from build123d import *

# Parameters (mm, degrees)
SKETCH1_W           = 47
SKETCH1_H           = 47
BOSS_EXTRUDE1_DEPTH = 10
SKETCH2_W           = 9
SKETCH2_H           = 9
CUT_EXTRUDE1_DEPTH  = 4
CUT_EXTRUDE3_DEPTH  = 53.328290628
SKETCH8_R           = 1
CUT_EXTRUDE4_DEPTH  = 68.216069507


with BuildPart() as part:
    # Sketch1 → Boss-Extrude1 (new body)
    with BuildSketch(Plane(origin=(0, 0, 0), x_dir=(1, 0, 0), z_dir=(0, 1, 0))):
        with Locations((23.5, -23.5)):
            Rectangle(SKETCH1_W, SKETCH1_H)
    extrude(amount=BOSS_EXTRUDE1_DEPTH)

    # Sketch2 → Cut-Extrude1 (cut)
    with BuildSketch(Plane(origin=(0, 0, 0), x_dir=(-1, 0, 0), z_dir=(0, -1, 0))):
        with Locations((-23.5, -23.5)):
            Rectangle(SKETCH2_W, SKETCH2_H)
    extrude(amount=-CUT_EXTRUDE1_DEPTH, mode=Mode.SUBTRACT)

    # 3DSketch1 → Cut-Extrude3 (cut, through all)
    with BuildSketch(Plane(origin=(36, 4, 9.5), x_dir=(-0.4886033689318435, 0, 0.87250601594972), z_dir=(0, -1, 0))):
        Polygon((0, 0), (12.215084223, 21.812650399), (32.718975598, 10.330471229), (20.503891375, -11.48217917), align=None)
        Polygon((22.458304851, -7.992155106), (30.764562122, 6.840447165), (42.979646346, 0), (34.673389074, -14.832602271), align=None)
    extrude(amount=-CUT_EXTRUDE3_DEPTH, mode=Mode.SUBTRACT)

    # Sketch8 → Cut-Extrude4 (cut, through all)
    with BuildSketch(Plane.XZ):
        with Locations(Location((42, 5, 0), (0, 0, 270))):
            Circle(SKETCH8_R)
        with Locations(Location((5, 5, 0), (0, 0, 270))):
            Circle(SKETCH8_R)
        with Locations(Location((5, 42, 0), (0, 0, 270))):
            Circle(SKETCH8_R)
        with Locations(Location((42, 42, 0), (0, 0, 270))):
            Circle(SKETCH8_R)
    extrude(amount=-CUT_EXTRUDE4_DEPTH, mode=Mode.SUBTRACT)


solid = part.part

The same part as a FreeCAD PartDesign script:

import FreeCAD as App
import Part
import Sketcher

V = App.Vector


def add_polygon(sketch, points):
    """Adds a closed chain of lines whose ends are joined by coincident constraints."""
    first, n = sketch.GeometryCount, len(points)
    for a, b in zip(points, points[1:] + points[:1]):
        sketch.addGeometry(Part.LineSegment(App.Vector(*a, 0), App.Vector(*b, 0)), False)
    for i in range(n):
        sketch.addConstraint(Sketcher.Constraint("Coincident", first + i, 2, first + (i + 1) % n, 1))

doc = App.newDocument("Part")
params = doc.addObject("Spreadsheet::Sheet", "Params")
for row, (alias, value) in enumerate([
    ("sketch1_width", "47 mm"),
    ("pad1_length", "10 mm"),
    ("sketch2_width", "9 mm"),
    ("pocket1_length", "4 mm"),
    ("sketch3_width", "25 mm"),
    ("sketch3_width2", "4 mm"),
    ("sketch3_height", "14 mm"),
    ("sketch3_height2", "23.5 mm"),
    ("sketch4_diameter", "2 mm"),
], start=1):
    params.set(f"A{row}", alias)
    params.set(f"B{row}", "=" + value)
    params.setAlias(f"B{row}", alias)

body = doc.addObject("PartDesign::Body", "Body")

sketch1 = doc.addObject("Sketcher::SketchObject", "Sketch")
body.addObject(sketch1)
sketch1.AttachmentSupport = (doc.XZ_Plane, [""])
sketch1.MapMode = "FlatFace"
add_polygon(sketch1, [(0, 0), (0, 47), (47, 47), (47, 0)])
sketch1.addConstraint([
    Sketcher.Constraint("Vertical", 0),
    Sketcher.Constraint("Horizontal", 1),
    Sketcher.Constraint("Vertical", 2),
    Sketcher.Constraint("Horizontal", 3),
    Sketcher.Constraint("Coincident", 3, 2, -1, 1),
    Sketcher.Constraint("Equal", 3, 0),
    Sketcher.Constraint("DistanceX", 1, 1, 1, 2, 47.0),
])
sketch1.setExpression("Constraints[10]", "Params.sketch1_width")
pad1 = doc.addObject("PartDesign::Pad", "Pad")
body.addObject(pad1)
pad1.Profile = sketch1
pad1.setExpression("Length", "Params.pad1_length")
pad1.Reversed = True

sketch2 = doc.addObject("Sketcher::SketchObject", "Sketch001")
body.addObject(sketch2)
sketch2.AttachmentSupport = (doc.XZ_Plane, [""])
sketch2.MapMode = "FlatFace"
add_polygon(sketch2, [(28, 19), (28, 28), (19, 28), (19, 19)])
sketch2.addConstraint([
    Sketcher.Constraint("Vertical", 0),
    Sketcher.Constraint("Horizontal", 1),
    Sketcher.Constraint("Vertical", 2),
    Sketcher.Constraint("Horizontal", 3),
    Sketcher.Constraint("Equal", 3, 0),
    Sketcher.Constraint("DistanceX", 1, 2, 1, 1, 9.0),
    Sketcher.Constraint("DistanceX", -1, 1, 0, 2, 28.0),
    Sketcher.Constraint("DistanceY", -1, 1, 0, 2, 28.0),
])
sketch2.setExpression("Constraints[9]", "Params.sketch2_width")
pocket1 = doc.addObject("PartDesign::Pocket", "Pocket")
body.addObject(pocket1)
pocket1.Profile = sketch2
pocket1.setExpression("Length", "Params.pocket1_length")

sketch3 = doc.addObject("Sketcher::SketchObject", "Sketch002")
body.addObject(sketch3)
sketch3.AttachmentSupport = (doc.XZ_Plane, [""])
sketch3.MapMode = "FlatFace"
sketch3.AttachmentOffset = App.Placement(V(0, 0, -4), App.Rotation())
add_polygon(sketch3, [(11, 9.5), (36, 9.5), (36, 33), (32, 33), (32, 47), (15, 47), (15, 33), (11, 33)])
sketch3.addConstraint([
    Sketcher.Constraint("Horizontal", 0),
    Sketcher.Constraint("Vertical", 1),
    Sketcher.Constraint("Horizontal", 2),
    Sketcher.Constraint("Vertical", 3),
    Sketcher.Constraint("Horizontal", 4),
    Sketcher.Constraint("Vertical", 5),
    Sketcher.Constraint("Horizontal", 6),
    Sketcher.Constraint("Vertical", 7),
    Sketcher.Constraint("Horizontal", 2, 2, 5, 2),
    Sketcher.Constraint("Equal", 2, 6),
    Sketcher.Constraint("DistanceX", 0, 1, 0, 2, 25.0),
    Sketcher.Constraint("DistanceX", 2, 2, 2, 1, 4.0),
    Sketcher.Constraint("DistanceY", 3, 1, 3, 2, 14.0),
    Sketcher.Constraint("DistanceY", 1, 1, 1, 2, 23.5),
    Sketcher.Constraint("DistanceX", -1, 1, 0, 2, 36.0),
    Sketcher.Constraint("DistanceY", -1, 1, 1, 2, 33.0),
])
sketch3.setExpression("Constraints[18]", "Params.sketch3_width")
sketch3.setExpression("Constraints[19]", "Params.sketch3_width2")
sketch3.setExpression("Constraints[20]", "Params.sketch3_height")
sketch3.setExpression("Constraints[21]", "Params.sketch3_height2")
pocket2 = doc.addObject("PartDesign::Pocket", "Pocket001")
body.addObject(pocket2)
pocket2.Profile = sketch3
pocket2.Type = "ThroughAll"

sketch4 = doc.addObject("Sketcher::SketchObject", "Sketch003")
body.addObject(sketch4)
sketch4.AttachmentSupport = (doc.XZ_Plane, [""])
sketch4.MapMode = "FlatFace"
sketch4.addGeometry([
    Part.Circle(V(42, 5, 0), V(0, 0, 1), 1),
    Part.Circle(V(5, 5, 0), V(0, 0, 1), 1),
    Part.Circle(V(5, 42, 0), V(0, 0, 1), 1),
    Part.Circle(V(42, 42, 0), V(0, 0, 1), 1),
], False)
sketch4.addConstraint([
    Sketcher.Constraint("Equal", 0, 1),
    Sketcher.Constraint("Equal", 1, 2),
    Sketcher.Constraint("Equal", 2, 3),
    Sketcher.Constraint("Horizontal", 0, 3, 1, 3),
    Sketcher.Constraint("Horizontal", 2, 3, 3, 3),
    Sketcher.Constraint("Vertical", 1, 3, 2, 3),
    Sketcher.Constraint("Vertical", 0, 3, 3, 3),
    Sketcher.Constraint("Diameter", 0, 2.0),
    Sketcher.Constraint("DistanceX", -1, 1, 0, 3, 42.0),
    Sketcher.Constraint("DistanceY", -1, 1, 0, 3, 5.0),
    Sketcher.Constraint("DistanceX", -1, 1, 1, 3, 5.0),
    Sketcher.Constraint("DistanceY", -1, 1, 2, 3, 42.0),
])
sketch4.setExpression("Constraints[7]", "Params.sketch4_diameter")
pocket3 = doc.addObject("PartDesign::Pocket", "Pocket002")
body.addObject(pocket3)
pocket3.Profile = sketch4
pocket3.Type = "ThroughAll"

doc.recompute()
